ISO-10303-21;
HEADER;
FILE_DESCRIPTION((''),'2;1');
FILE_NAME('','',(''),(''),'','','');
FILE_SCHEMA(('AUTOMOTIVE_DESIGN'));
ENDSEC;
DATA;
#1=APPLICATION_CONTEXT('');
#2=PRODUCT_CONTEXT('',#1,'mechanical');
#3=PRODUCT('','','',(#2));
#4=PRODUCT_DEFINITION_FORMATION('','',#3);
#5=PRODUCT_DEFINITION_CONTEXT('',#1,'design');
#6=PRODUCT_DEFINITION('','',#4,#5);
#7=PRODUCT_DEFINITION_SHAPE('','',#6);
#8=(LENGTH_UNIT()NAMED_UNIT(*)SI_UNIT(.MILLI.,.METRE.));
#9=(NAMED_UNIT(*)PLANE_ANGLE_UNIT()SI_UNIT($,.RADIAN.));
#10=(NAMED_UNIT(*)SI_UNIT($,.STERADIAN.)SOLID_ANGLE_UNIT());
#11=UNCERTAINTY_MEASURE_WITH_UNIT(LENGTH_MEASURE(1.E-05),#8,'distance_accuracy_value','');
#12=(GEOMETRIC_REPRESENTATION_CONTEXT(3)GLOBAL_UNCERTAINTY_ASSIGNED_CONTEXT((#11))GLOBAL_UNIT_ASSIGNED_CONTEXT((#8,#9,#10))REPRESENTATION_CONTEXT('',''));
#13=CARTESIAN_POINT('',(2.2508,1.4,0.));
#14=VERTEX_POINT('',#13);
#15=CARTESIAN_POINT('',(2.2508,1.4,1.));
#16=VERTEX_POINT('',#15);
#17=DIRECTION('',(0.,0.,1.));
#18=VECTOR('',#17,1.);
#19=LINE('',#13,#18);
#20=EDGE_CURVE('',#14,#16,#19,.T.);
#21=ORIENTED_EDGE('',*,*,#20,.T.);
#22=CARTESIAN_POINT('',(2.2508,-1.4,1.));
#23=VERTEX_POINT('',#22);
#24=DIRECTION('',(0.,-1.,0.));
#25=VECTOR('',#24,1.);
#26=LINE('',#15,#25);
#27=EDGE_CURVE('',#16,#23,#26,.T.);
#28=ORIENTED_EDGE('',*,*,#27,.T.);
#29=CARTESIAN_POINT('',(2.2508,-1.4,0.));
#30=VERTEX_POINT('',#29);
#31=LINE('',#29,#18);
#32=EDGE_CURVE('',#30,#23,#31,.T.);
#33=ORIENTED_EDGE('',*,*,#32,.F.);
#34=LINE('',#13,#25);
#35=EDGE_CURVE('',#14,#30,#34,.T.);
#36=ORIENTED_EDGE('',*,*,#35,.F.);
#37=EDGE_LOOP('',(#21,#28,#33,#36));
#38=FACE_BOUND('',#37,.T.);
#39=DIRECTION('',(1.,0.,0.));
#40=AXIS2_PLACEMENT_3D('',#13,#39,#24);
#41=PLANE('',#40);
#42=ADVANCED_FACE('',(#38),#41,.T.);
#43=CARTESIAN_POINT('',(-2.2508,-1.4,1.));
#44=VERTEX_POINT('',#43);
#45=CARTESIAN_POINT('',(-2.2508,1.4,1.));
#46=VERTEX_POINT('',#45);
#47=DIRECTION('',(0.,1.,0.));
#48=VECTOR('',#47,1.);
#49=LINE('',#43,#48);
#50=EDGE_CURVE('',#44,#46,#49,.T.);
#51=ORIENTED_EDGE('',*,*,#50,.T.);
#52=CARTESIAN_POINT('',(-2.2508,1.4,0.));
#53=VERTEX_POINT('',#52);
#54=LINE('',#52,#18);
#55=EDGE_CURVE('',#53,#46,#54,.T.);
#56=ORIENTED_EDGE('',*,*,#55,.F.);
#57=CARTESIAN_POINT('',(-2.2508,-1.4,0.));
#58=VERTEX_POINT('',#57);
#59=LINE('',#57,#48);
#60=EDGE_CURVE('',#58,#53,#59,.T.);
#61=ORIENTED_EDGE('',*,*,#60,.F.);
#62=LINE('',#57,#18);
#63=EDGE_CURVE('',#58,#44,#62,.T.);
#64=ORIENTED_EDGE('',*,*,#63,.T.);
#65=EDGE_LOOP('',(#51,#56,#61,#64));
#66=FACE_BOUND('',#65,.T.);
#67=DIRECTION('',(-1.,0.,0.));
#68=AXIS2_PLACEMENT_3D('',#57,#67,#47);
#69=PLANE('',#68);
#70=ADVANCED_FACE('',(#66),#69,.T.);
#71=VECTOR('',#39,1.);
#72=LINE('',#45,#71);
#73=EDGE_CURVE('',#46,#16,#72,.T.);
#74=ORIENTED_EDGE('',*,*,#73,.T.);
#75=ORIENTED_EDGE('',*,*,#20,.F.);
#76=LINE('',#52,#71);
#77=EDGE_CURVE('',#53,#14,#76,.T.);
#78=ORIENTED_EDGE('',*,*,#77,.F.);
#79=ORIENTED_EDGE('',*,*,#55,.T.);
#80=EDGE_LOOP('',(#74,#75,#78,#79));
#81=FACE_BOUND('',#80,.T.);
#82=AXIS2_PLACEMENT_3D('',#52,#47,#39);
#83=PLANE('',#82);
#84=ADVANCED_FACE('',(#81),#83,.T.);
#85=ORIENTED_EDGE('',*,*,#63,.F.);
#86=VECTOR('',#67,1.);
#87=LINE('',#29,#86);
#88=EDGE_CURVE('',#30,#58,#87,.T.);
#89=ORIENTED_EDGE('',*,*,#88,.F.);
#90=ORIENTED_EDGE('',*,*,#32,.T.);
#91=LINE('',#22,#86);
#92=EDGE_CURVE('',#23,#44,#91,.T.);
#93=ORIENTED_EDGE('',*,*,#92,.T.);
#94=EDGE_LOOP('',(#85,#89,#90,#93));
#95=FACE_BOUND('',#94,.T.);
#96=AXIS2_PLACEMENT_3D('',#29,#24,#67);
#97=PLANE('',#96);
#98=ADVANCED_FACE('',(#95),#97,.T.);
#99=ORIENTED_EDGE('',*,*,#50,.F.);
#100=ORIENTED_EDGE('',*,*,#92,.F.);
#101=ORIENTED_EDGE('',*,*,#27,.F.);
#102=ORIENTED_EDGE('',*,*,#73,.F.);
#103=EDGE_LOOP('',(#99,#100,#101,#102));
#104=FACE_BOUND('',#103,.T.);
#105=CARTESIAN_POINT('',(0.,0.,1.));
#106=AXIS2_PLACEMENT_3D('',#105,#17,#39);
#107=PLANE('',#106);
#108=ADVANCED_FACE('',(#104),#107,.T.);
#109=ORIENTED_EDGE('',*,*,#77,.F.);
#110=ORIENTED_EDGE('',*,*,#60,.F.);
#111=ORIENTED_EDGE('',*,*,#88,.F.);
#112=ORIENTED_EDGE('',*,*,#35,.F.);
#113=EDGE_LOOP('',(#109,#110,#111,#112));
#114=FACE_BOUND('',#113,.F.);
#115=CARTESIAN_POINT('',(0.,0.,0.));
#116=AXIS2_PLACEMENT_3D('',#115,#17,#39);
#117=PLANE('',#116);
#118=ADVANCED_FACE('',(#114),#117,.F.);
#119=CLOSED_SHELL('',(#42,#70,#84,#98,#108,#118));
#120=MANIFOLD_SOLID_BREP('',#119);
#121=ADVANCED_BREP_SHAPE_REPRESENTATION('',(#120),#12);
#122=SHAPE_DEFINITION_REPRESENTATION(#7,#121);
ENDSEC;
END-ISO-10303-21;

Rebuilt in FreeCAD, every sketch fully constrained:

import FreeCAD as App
import Part
import Sketcher
from FreeCAD import Vector


def add_polygon(sketch, points):
    """Adds a closed chain of lines whose ends are joined by coincident constraints."""
    first, n = sketch.GeometryCount, len(points)
    for a, b in zip(points, points[1:] + points[:1]):
        sketch.addGeometry(Part.LineSegment(App.Vector(*a, 0), App.Vector(*b, 0)), False)
    for i in range(n):
        sketch.addConstraint(Sketcher.Constraint("Coincident", first + i, 2, first + (i + 1) % n, 1))

doc = App.newDocument("Part")
body = doc.addObject("PartDesign::Body", "Body")

# Sketch on XY plane
sketch1 = doc.addObject("Sketcher::SketchObject", "Sketch")
body.addObject(sketch1)
sketch1.AttachmentSupport = (doc.XY_Plane, [""])
sketch1.MapMode = "FlatFace"
add_polygon(sketch1, [(2.3, 1.4), (-2.3, 1.4), (-2.3, -1.4), (2.3, -1.4)])  # lines 0-3
sketch1.addConstraint(Sketcher.Constraint("Horizontal", 0))
sketch1.addConstraint(Sketcher.Constraint("Vertical", 1))
sketch1.addConstraint(Sketcher.Constraint("Horizontal", 2))
sketch1.addConstraint(Sketcher.Constraint("Vertical", 3))
sketch1.addConstraint(Sketcher.Constraint("Symmetric", 0, 2, 2, 2, -1, 1))
sketch1.addConstraint(Sketcher.Constraint("DistanceY", 1, 2, 1, 1, 2.8))
sketch1.addConstraint(Sketcher.Constraint("DistanceX", 0, 2, 0, 1, 4.5016))
pad1 = doc.addObject("PartDesign::Pad", "Pad")
body.addObject(pad1)
pad1.Profile = sketch1
pad1.Length = 1

doc.recompute()
